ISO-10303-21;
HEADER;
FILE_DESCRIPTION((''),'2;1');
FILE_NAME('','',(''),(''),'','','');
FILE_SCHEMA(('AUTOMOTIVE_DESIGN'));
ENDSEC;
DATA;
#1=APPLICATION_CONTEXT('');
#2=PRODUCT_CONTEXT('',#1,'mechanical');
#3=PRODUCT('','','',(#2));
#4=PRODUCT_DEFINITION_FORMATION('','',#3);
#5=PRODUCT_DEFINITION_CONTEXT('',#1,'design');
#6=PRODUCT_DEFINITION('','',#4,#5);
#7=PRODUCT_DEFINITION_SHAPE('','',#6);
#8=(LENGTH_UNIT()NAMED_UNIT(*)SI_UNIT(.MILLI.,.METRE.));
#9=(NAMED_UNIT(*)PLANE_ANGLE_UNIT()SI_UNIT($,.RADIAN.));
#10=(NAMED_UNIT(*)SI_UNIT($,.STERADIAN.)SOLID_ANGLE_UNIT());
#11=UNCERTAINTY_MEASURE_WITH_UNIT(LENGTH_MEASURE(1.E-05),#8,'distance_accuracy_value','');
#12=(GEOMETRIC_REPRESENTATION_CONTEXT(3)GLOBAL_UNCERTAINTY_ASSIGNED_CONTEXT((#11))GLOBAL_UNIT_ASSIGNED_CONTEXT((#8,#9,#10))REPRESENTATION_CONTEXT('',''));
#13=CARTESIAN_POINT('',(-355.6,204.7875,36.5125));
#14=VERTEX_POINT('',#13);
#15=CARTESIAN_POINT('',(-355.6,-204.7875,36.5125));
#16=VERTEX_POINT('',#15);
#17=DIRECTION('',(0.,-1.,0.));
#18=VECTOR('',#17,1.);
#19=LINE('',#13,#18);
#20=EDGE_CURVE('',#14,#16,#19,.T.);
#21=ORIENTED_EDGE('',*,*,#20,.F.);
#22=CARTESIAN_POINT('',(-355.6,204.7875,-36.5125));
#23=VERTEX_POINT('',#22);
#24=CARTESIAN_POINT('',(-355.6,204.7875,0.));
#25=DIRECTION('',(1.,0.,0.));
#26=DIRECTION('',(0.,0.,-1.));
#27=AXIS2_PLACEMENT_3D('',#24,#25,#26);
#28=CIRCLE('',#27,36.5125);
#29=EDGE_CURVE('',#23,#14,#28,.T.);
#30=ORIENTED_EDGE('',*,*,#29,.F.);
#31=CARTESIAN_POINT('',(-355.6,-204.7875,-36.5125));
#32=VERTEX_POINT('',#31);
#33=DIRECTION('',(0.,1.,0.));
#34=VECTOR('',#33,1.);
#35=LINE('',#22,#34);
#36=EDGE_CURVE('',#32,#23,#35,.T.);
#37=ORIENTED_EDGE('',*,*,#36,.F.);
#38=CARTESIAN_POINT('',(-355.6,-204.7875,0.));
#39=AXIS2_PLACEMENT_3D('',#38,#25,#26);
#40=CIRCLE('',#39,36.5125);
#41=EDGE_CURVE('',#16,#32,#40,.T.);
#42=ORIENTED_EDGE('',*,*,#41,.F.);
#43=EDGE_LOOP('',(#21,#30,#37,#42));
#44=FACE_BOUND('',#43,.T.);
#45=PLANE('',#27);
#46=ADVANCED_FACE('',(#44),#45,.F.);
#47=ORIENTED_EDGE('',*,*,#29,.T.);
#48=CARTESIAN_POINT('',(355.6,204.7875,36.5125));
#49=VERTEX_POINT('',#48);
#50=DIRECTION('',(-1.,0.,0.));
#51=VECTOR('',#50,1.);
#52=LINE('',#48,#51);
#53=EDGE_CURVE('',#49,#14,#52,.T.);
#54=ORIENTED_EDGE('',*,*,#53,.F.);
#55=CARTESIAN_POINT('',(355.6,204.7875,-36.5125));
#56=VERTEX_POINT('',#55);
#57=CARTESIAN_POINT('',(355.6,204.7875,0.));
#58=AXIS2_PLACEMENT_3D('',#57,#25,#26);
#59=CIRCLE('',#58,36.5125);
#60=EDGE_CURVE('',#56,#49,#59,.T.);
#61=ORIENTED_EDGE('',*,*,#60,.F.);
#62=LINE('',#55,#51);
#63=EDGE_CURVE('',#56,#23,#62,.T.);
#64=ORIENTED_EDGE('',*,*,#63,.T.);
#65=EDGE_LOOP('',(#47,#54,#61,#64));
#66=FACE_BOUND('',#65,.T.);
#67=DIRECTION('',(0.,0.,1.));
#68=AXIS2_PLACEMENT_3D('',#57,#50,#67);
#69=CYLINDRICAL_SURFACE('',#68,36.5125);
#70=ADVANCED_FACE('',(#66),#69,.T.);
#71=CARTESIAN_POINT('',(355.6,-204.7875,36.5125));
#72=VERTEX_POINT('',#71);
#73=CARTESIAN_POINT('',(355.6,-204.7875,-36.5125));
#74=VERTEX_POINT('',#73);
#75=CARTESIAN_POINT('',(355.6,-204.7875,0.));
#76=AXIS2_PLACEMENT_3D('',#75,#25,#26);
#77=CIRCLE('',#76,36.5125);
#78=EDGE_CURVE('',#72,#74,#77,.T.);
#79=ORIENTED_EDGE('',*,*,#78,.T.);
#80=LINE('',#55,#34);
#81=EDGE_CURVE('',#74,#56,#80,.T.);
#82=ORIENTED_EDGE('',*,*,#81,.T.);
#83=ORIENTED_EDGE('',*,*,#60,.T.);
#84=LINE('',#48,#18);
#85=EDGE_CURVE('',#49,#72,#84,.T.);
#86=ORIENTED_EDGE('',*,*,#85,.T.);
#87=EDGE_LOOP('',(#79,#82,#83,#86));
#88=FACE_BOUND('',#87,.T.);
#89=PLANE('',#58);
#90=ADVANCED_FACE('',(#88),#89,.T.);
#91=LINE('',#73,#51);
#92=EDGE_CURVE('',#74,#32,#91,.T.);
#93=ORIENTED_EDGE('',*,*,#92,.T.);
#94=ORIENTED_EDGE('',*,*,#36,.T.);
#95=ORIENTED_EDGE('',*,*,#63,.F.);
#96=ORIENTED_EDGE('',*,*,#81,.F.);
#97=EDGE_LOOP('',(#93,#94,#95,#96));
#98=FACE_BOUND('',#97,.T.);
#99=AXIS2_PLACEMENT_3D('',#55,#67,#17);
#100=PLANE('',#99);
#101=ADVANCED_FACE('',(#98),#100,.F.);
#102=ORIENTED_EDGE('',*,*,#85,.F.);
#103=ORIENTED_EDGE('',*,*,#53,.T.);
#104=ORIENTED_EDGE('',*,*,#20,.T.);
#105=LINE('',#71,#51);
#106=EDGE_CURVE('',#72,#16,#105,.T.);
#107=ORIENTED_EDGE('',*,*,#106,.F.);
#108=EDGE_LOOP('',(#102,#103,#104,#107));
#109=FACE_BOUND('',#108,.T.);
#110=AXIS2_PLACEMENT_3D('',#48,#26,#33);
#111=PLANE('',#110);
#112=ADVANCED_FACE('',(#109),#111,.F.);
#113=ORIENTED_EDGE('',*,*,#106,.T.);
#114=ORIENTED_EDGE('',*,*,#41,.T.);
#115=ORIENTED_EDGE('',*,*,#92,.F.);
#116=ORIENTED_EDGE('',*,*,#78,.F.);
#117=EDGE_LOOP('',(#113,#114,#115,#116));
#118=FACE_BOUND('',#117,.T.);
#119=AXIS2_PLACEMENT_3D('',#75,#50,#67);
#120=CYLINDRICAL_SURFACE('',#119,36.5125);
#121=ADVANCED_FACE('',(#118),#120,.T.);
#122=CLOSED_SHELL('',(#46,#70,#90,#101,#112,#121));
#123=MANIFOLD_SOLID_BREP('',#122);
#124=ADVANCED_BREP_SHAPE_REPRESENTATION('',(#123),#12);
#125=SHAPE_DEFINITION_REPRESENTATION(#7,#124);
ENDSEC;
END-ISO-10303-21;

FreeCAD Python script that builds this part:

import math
import FreeCAD as App
import Part
import Sketcher
from FreeCAD import Vector
Q = App.Units.Quantity

doc = App.newDocument("Part")
params = doc.addObject("Spreadsheet::Sheet", "Params")
for row, (alias, value) in enumerate([
    ("sketch1_radius", "1.4375 in"),
    ("sketch1_width", "16.125 in"),
    ("pad1_length", "28 in"),
], start=1):
    params.set(f"A{row}", alias)
    params.set(f"B{row}", "=" + value)
    params.setAlias(f"B{row}", alias)

body = doc.addObject("PartDesign::Body", "Body")

sketch1 = doc.addObject("Sketcher::SketchObject", "Sketch")
body.addObject(sketch1)
sketch1.AttachmentSupport = (doc.YZ_Plane, [""])
sketch1.MapMode = "FlatFace"
sketch1.addGeometry(Part.LineSegment(Vector(205, 37, 0), Vector(-205, 37, 0)), False)
sketch1.addGeometry(Part.ArcOfCircle(Part.Circle(Vector(-205, 0, 0), Vector(0, 0, 1), 37), math.radians(90), math.radians(270)), False)
sketch1.addGeometry(Part.LineSegment(Vector(-205, -37, 0), Vector(205, -37, 0)), False)
sketch1.addGeometry(Part.ArcOfCircle(Part.Circle(Vector(205, 0, 0), Vector(0, 0, 1), 37), math.radians(-90), math.radians(90)), False)
sketch1.addConstraint(Sketcher.Constraint("Tangent", 0, 2, 1, 1))
sketch1.addConstraint(Sketcher.Constraint("Tangent", 1, 2, 2, 1))
sketch1.addConstraint(Sketcher.Constraint("Tangent", 2, 2, 3, 1))
sketch1.addConstraint(Sketcher.Constraint("Tangent", 3, 2, 0, 1))
sketch1.addConstraint(Sketcher.Constraint("Horizontal", 0))
sketch1.addConstraint(Sketcher.Constraint("Horizontal", 2))
sketch1.addConstraint(Sketcher.Constraint("Symmetric", 1, 3, 3, 3, -1, 1))
sketch1.addConstraint(Sketcher.Constraint("Radius", 1, Q("1.4375 in")))
sketch1.addConstraint(Sketcher.Constraint("DistanceX", 0, 2, 0, 1, Q("16.125 in")))
sketch1.setExpression("Constraints[7]", "Params.sketch1_radius")
sketch1.setExpression("Constraints[8]", "Params.sketch1_width")
pad1 = doc.addObject("PartDesign::Pad", "Pad")
body.addObject(pad1)
pad1.Profile = sketch1
pad1.setExpression("Length", "Params.pad1_length")
pad1.Midplane = True

doc.recompute()
